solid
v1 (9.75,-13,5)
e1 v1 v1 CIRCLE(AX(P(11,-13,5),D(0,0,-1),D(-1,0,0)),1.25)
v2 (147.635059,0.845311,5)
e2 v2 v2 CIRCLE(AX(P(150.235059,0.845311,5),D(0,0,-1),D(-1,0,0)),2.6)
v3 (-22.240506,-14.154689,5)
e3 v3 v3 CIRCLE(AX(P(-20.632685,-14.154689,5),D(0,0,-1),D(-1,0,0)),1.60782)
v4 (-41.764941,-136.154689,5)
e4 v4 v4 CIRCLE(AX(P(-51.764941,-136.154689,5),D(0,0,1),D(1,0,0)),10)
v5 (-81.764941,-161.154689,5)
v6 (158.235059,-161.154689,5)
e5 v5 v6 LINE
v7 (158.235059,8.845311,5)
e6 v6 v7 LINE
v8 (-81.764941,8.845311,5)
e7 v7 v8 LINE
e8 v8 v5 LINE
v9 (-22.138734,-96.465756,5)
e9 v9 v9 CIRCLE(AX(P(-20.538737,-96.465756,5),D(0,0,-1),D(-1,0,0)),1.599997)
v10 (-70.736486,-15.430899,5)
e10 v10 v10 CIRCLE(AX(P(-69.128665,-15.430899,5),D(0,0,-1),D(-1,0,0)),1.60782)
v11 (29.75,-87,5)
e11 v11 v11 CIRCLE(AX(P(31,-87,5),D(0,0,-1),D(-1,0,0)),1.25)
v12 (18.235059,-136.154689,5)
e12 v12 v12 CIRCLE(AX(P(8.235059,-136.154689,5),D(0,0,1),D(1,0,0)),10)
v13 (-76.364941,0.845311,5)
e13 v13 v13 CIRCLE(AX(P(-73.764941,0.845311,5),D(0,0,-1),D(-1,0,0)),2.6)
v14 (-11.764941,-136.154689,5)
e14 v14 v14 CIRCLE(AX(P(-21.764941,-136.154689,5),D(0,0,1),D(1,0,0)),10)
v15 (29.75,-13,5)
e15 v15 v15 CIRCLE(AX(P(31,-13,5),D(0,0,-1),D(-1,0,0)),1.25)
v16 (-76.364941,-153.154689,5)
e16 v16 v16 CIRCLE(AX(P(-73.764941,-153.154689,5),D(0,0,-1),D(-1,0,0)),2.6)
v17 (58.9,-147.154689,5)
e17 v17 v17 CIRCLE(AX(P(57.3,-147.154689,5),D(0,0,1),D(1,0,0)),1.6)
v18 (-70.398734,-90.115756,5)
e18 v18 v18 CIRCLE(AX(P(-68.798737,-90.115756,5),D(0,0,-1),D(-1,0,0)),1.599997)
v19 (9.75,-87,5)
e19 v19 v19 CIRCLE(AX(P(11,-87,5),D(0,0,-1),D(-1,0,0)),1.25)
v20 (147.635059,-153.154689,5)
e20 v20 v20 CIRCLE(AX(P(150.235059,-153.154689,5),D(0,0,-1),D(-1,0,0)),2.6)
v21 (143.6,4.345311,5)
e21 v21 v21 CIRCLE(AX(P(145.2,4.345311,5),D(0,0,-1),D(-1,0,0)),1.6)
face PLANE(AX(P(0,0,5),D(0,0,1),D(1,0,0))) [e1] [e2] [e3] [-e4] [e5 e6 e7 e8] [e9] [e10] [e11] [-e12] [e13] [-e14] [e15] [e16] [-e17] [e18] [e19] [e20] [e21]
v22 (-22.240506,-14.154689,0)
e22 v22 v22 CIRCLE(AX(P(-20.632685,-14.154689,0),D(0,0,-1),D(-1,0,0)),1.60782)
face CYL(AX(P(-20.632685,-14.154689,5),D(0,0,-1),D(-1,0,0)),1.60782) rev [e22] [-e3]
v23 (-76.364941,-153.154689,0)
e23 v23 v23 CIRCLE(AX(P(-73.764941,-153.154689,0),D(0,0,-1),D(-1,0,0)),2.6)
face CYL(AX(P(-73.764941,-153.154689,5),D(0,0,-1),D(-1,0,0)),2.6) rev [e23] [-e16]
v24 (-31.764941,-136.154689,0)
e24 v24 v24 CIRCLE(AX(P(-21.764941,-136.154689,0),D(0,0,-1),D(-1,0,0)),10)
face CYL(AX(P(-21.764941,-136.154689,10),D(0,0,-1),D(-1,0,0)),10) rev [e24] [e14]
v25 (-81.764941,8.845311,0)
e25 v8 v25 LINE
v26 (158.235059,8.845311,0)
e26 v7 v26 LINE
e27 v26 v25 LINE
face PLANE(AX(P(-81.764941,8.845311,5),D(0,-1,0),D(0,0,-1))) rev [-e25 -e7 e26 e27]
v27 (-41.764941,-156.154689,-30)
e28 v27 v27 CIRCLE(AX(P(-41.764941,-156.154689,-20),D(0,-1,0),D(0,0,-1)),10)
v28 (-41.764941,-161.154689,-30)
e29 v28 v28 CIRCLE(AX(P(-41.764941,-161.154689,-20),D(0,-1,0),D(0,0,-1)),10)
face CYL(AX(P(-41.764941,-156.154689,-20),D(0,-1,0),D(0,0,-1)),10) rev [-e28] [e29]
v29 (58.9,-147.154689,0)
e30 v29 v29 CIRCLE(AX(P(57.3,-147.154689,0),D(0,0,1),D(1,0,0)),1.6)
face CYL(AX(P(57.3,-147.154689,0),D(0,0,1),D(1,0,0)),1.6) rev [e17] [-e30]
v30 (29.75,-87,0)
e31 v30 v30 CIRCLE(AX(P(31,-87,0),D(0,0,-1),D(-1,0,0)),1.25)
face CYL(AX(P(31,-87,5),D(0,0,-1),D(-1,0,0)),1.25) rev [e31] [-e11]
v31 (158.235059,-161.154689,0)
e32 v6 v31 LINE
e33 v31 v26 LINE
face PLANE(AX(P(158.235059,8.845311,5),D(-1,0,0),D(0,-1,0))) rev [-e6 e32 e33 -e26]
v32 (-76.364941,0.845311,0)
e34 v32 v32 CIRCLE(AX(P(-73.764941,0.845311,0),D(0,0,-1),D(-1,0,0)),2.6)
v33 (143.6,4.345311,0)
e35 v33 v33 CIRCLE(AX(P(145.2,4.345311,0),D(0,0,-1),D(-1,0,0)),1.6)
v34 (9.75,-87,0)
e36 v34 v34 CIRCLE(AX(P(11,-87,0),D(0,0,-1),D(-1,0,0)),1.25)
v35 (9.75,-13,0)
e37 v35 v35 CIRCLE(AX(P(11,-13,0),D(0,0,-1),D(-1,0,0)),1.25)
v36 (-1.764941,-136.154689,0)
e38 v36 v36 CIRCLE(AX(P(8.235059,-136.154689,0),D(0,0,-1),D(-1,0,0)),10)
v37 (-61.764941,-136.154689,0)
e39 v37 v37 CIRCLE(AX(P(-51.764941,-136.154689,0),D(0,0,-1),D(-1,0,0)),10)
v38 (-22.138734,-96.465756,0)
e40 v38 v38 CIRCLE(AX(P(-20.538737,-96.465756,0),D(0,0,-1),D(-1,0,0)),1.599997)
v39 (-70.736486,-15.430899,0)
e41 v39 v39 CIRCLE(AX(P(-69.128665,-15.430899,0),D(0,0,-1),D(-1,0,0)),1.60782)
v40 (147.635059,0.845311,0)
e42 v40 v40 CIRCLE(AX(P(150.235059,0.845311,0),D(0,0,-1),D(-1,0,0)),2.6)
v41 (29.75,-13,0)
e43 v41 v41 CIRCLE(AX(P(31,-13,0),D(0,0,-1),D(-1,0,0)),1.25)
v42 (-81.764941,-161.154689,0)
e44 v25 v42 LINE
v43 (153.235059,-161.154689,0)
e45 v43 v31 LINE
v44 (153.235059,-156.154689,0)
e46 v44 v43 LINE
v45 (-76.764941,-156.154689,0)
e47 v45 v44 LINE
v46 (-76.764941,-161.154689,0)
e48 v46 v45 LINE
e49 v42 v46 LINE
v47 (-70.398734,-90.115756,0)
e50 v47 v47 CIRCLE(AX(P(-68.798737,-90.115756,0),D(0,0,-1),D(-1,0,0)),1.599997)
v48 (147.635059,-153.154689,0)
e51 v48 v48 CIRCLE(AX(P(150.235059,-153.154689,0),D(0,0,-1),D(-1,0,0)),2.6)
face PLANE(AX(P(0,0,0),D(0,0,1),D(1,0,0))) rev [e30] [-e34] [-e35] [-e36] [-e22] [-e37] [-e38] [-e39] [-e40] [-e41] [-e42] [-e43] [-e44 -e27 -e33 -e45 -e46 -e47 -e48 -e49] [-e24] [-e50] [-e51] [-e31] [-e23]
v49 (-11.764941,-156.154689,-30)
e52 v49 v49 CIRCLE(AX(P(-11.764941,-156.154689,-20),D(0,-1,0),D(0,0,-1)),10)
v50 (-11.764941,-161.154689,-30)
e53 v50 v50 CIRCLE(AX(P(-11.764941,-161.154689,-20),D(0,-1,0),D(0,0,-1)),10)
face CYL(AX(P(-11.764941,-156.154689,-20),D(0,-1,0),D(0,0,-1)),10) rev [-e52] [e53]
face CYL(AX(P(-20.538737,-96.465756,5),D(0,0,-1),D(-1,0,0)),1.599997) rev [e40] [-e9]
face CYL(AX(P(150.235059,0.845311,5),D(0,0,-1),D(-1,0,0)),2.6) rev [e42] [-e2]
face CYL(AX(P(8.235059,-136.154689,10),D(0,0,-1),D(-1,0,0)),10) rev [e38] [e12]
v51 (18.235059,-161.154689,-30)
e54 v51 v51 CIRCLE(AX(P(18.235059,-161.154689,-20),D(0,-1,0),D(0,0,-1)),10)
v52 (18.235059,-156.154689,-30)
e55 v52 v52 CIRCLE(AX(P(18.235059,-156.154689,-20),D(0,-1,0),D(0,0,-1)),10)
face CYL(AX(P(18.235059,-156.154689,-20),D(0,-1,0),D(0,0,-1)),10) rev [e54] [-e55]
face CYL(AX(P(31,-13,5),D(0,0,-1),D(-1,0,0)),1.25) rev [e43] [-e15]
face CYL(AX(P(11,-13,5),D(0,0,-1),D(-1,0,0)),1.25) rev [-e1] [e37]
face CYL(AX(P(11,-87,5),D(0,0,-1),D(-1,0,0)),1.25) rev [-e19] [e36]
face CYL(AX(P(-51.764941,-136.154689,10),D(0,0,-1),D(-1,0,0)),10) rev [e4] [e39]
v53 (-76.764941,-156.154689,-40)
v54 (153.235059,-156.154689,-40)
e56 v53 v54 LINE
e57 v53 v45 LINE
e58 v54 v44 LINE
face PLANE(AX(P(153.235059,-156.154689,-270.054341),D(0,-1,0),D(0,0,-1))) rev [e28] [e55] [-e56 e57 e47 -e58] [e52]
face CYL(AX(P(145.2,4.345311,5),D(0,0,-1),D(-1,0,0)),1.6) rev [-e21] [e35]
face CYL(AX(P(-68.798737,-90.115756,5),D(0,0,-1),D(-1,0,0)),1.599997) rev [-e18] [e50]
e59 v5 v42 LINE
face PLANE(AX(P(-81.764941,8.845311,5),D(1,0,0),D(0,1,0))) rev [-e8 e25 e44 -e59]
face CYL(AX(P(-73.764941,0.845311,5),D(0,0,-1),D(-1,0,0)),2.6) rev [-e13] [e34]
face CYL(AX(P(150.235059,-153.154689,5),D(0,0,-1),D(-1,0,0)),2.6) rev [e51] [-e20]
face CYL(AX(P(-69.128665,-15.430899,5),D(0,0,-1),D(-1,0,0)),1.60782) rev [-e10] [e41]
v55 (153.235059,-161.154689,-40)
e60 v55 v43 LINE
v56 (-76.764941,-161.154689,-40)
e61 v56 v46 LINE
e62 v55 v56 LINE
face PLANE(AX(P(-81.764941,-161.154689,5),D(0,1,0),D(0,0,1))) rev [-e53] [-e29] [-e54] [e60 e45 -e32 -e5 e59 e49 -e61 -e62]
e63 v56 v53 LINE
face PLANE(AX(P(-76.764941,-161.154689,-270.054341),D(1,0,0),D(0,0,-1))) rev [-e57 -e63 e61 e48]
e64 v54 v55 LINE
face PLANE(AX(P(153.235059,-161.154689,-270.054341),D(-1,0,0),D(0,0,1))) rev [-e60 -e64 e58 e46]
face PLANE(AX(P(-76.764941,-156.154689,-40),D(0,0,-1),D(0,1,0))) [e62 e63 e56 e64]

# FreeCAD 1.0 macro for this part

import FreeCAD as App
import Part
import Sketcher

V = App.Vector
Q = App.Units.Quantity

doc = App.newDocument("Part")
params = doc.addObject("Spreadsheet::Sheet", "Params")
for row, (alias, value) in enumerate([
    ("sketch1_width", "240 mm"),
    ("sketch1_height", "170 mm"),
    ("pad1_length", "5 mm"),
    ("sketch2_diameter", "3.2 mm"),
    ("sketch2_diameter2", "2.5 mm"),
    ("pocket1_length", "5 mm"),
    ("sketch3_diameter", "3.2 mm"),
    ("pocket2_length", "5 mm"),
    ("sketch4_diameter", "5.2 mm"),
    ("pocket3_length", "5 mm"),
    ("sketch5_width", "230 mm"),
    ("sketch5_height", "5 mm"),
    ("pad2_length", "40 mm"),
    ("sketch6_diameter", "20 mm"),
    ("pocket4_length", "5 mm"),
    ("sketch7_diameter", "20 mm"),
    ("pocket5_length", "10 mm"),
], start=1):
    params.set(f"A{row}", alias)
    params.set(f"B{row}", "=" + value)
    params.setAlias(f"B{row}", alias)

body = doc.addObject("PartDesign::Body", "Body")

sketch1 = body.newObject("Sketcher::SketchObject", "Sketch")
sketch1.AttachmentSupport = (doc.getObject("XY_Plane"), [""])
sketch1.MapMode = "FlatFace"
sketch1.addGeometry(Part.LineSegment(V(-82, 9, 0), V(-82, -161, 0)), False)
sketch1.addGeometry(Part.LineSegment(V(-82, -161, 0), V(158, -161, 0)), False)
sketch1.addGeometry(Part.LineSegment(V(158, -161, 0), V(158, 9, 0)), False)
sketch1.addGeometry(Part.LineSegment(V(158, 9, 0), V(-82, 9, 0)), False)
sketch1.addConstraint(Sketcher.Constraint("Coincident", 0, 2, 1, 1))
sketch1.addConstraint(Sketcher.Constraint("Coincident", 1, 2, 2, 1))
sketch1.addConstraint(Sketcher.Constraint("Coincident", 2, 2, 3, 1))
sketch1.addConstraint(Sketcher.Constraint("Coincident", 3, 2, 0, 1))
sketch1.addConstraint(Sketcher.Constraint("Vertical", 0))
sketch1.addConstraint(Sketcher.Constraint("Horizontal", 1))
sketch1.addConstraint(Sketcher.Constraint("Vertical", 2))
sketch1.addConstraint(Sketcher.Constraint("Horizontal", 3))
sketch1.addConstraint(Sketcher.Constraint("DistanceX", 1, 1, 1, 2, Q("240 mm")))
sketch1.addConstraint(Sketcher.Constraint("DistanceY", 0, 2, 0, 1, Q("170 mm")))
sketch1.addConstraint(Sketcher.Constraint("DistanceX", 0, 2, -1, 1, Q("81.764941 mm")))
sketch1.addConstraint(Sketcher.Constraint("DistanceY", 0, 2, -1, 1, Q("161.154689 mm")))
sketch1.setExpression("Constraints[8]", "Params.sketch1_width")
sketch1.setExpression("Constraints[9]", "Params.sketch1_height")
pad1 = body.newObject("PartDesign::Pad", "Pad")
pad1.Profile = sketch1
pad1.setExpression("Length", "Params.pad1_length")

sketch2 = body.newObject("Sketcher::SketchObject", "Sketch001")
sketch2.AttachmentSupport = (doc.getObject("XY_Plane"), [""])
sketch2.MapMode = "FlatFace"
sketch2.addGeometry(Part.Circle(V(145.2, 4.3, 0), V(0, 0, 1), 1.6), False)
sketch2.addGeometry(Part.Circle(V(-20.5, -96.5, 0), V(0, 0, 1), 1.6), False)
sketch2.addGeometry(Part.Circle(V(-68.8, -90.1, 0), V(0, 0, 1), 1.6), False)
sketch2.addGeometry(Part.Circle(V(-69.1, -15.4, 0), V(0, 0, 1), 1.6), False)
sketch2.addGeometry(Part.Circle(V(-20.6, -14.2, 0), V(0, 0, 1), 1.6), False)
sketch2.addGeometry(Part.Circle(V(31, -87, 0), V(0, 0, 1), 1.2), False)
sketch2.addGeometry(Part.Circle(V(11, -87, 0), V(0, 0, 1), 1.2), False)
sketch2.addGeometry(Part.Circle(V(31, -13, 0), V(0, 0, 1), 1.2), False)
sketch2.addGeometry(Part.Circle(V(11, -13, 0), V(0, 0, 1), 1.2), False)
sketch2.addConstraint(Sketcher.Constraint("Equal", 1, 2))
sketch2.addConstraint(Sketcher.Constraint("Equal", 3, 4))
sketch2.addConstraint(Sketcher.Constraint("Equal", 5, 6))
sketch2.addConstraint(Sketcher.Constraint("Equal", 6, 7))
sketch2.addConstraint(Sketcher.Constraint("Equal", 7, 8))
sketch2.addConstraint(Sketcher.Constraint("Horizontal", 5, 3, 6, 3))
sketch2.addConstraint(Sketcher.Constraint("Horizontal", 7, 3, 8, 3))
sketch2.addConstraint(Sketcher.Constraint("Vertical", 5, 3, 7, 3))
sketch2.addConstraint(Sketcher.Constraint("Vertical", 6, 3, 8, 3))
sketch2.addConstraint(Sketcher.Constraint("Diameter", 0, Q("3.2 mm")))
sketch2.addConstraint(Sketcher.Constraint("Diameter", 5, Q("2.5 mm")))
sketch2.addConstraint(Sketcher.Constraint("DistanceX", -1, 1, 5, 3, Q("31 mm")))
sketch2.addConstraint(Sketcher.Constraint("DistanceY", 5, 3, -1, 1, Q("87 mm")))
sketch2.addConstraint(Sketcher.Constraint("DistanceX", -1, 1, 6, 3, Q("11 mm")))
sketch2.addConstraint(Sketcher.Constraint("DistanceY", 7, 3, -1, 1, Q("13 mm")))
sketch2.addConstraint(Sketcher.Constraint("DistanceX", -1, 1, 0, 3, Q("145.2 mm")))
sketch2.addConstraint(Sketcher.Constraint("DistanceY", 4, 3, 0, 3, Q("18.5 mm")))
sketch2.addConstraint(Sketcher.Constraint("Diameter", 3, Q("3.215641 mm")))
sketch2.addConstraint(Sketcher.Constraint("DistanceX", 2, 3, 1, 3, Q("48.26 mm")))
sketch2.addConstraint(Sketcher.Constraint("DistanceY", 1, 3, 2, 3, Q("6.35 mm")))
sketch2.addConstraint(Sketcher.Constraint("Diameter", 1, Q("3.199994 mm")))
sketch2.addConstraint(Sketcher.Constraint("DistanceY", 3, 3, -1, 1, Q("15.430899 mm")))
sketch2.addConstraint(Sketcher.Constraint("DistanceY", -1, 1, 0, 3, Q("4.345311 mm")))
sketch2.addConstraint(Sketcher.Constraint("DistanceX", 3, 3, 2, 3, Q("0.329929 mm")))
sketch2.addConstraint(Sketcher.Constraint("DistanceX", 3, 3, 4, 3, Q("48.49598 mm")))
sketch2.addConstraint(Sketcher.Constraint("DistanceX", 1, 3, -1, 1, Q("20.538737 mm")))
sketch2.addConstraint(Sketcher.Constraint("DistanceY", 1, 3, -1, 1, Q("96.465756 mm")))
sketch2.setExpression("Constraints[9]", "Params.sketch2_diameter")
sketch2.setExpression("Constraints[10]", "Params.sketch2_diameter2")
pocket1 = body.newObject("PartDesign::Pocket", "Pocket")
pocket1.Profile = sketch2
pocket1.setExpression("Length", "Params.pocket1_length")
pocket1.Reversed = True

sketch3 = body.newObject("Sketcher::SketchObject", "Sketch002")
sketch3.AttachmentSupport = (doc.getObject("XY_Plane"), [""])
sketch3.MapMode = "FlatFace"
sketch3.AttachmentOffset = App.Placement(V(0, 0, 5), App.Rotation())
sketch3.addGeometry(Part.Circle(V(57.3, -147.2, 0), V(0, 0, 1), 1.6), False)
sketch3.addConstraint(Sketcher.Constraint("Diameter", 0, Q("3.2 mm")))
sketch3.addConstraint(Sketcher.Constraint("DistanceX", -1, 1, 0, 3, Q("57.3 mm")))
sketch3.addConstraint(Sketcher.Constraint("DistanceY", 0, 3, -1, 1, Q("147.154689 mm")))
sketch3.setExpression("Constraints[0]", "Params.sketch3_diameter")
pocket2 = body.newObject("PartDesign::Pocket", "Pocket001")
pocket2.Profile = sketch3
pocket2.setExpression("Length", "Params.pocket2_length")

sketch4 = body.newObject("Sketcher::SketchObject", "Sketch003")
sketch4.AttachmentSupport = (doc.getObject("XY_Plane"), [""])
sketch4.MapMode = "FlatFace"
sketch4.addGeometry(Part.Circle(V(-73.8, -153.2, 0), V(0, 0, 1), 2.6), False)
sketch4.addGeometry(Part.Circle(V(150.2, -153.2, 0), V(0, 0, 1), 2.6), False)
sketch4.addGeometry(Part.Circle(V(150.2, 0.8, 0), V(0, 0, 1), 2.6), False)
sketch4.addGeometry(Part.Circle(V(-73.8, 0.8, 0), V(0, 0, 1), 2.6), False)
sketch4.addConstraint(Sketcher.Constraint("Equal", 0, 1))
sketch4.addConstraint(Sketcher.Constraint("Equal", 1, 2))
sketch4.addConstraint(Sketcher.Constraint("Equal", 2, 3))
sketch4.addConstraint(Sketcher.Constraint("Horizontal", 0, 3, 1, 3))
sketch4.addConstraint(Sketcher.Constraint("Horizontal", 2, 3, 3, 3))
sketch4.addConstraint(Sketcher.Constraint("Vertical", 1, 3, 2, 3))
sketch4.addConstraint(Sketcher.Constraint("Vertical", 0, 3, 3, 3))
sketch4.addConstraint(Sketcher.Constraint("Diameter", 0, Q("5.2 mm")))
sketch4.addConstraint(Sketcher.Constraint("DistanceX", 0, 3, 1, 3, Q("224 mm")))
sketch4.addConstraint(Sketcher.Constraint("DistanceY", 1, 3, 2, 3, Q("154 mm")))
sketch4.addConstraint(Sketcher.Constraint("DistanceX", 0, 3, -1, 1, Q("73.764941 mm")))
sketch4.addConstraint(Sketcher.Constraint("DistanceY", 0, 3, -1, 1, Q("153.154689 mm")))
sketch4.setExpression("Constraints[7]", "Params.sketch4_diameter")
pocket3 = body.newObject("PartDesign::Pocket", "Pocket002")
pocket3.Profile = sketch4
pocket3.setExpression("Length", "Params.pocket3_length")
pocket3.Reversed = True

sketch5 = body.newObject("Sketcher::SketchObject", "Sketch004")
sketch5.AttachmentSupport = (doc.getObject("XY_Plane"), [""])
sketch5.MapMode = "FlatFace"
sketch5.addGeometry(Part.LineSegment(V(153, -156, 0), V(153, -161, 0)), False)
sketch5.addGeometry(Part.LineSegment(V(153, -161, 0), V(-77, -161, 0)), False)
sketch5.addGeometry(Part.LineSegment(V(-77, -161, 0), V(-77, -156, 0)), False)
sketch5.addGeometry(Part.LineSegment(V(-77, -156, 0), V(153, -156, 0)), False)
sketch5.addConstraint(Sketcher.Constraint("Coincident", 0, 2, 1, 1))
sketch5.addConstraint(Sketcher.Constraint("Coincident", 1, 2, 2, 1))
sketch5.addConstraint(Sketcher.Constraint("Coincident", 2, 2, 3, 1))
sketch5.addConstraint(Sketcher.Constraint("Coincident", 3, 2, 0, 1))
sketch5.addConstraint(Sketcher.Constraint("Vertical", 0))
sketch5.addConstraint(Sketcher.Constraint("Horizontal", 1))
sketch5.addConstraint(Sketcher.Constraint("Vertical", 2))
sketch5.addConstraint(Sketcher.Constraint("Horizontal", 3))
sketch5.addConstraint(Sketcher.Constraint("DistanceX", 1, 2, 1, 1, Q("230 mm")))
sketch5.addConstraint(Sketcher.Constraint("DistanceY", 0, 2, 0, 1, Q("5 mm")))
sketch5.addConstraint(Sketcher.Constraint("DistanceX", -1, 1, 0, 2, Q("153.235059 mm")))
sketch5.addConstraint(Sketcher.Constraint("DistanceY", 0, 2, -1, 1, Q("161.154689 mm")))
sketch5.setExpression("Constraints[8]", "Params.sketch5_width")
sketch5.setExpression("Constraints[9]", "Params.sketch5_height")
pad2 = body.newObject("PartDesign::Pad", "Pad001")
pad2.Profile = sketch5
pad2.setExpression("Length", "Params.pad2_length")
pad2.Reversed = True

sketch6 = body.newObject("Sketcher::SketchObject", "Sketch005")
sketch6.AttachmentSupport = (doc.getObject("XZ_Plane"), [""])
sketch6.MapMode = "FlatFace"
sketch6.AttachmentOffset = App.Placement(V(0, 0, 161.154689), App.Rotation())
sketch6.addGeometry(Part.Circle(V(-42, -20, 0), V(0, 0, 1), 10), False)
sketch6.addGeometry(Part.Circle(V(-12, -20, 0), V(0, 0, 1), 10), False)
sketch6.addGeometry(Part.Circle(V(18, -20, 0), V(0, 0, 1), 10), False)
sketch6.addConstraint(Sketcher.Constraint("Equal", 0, 1))
sketch6.addConstraint(Sketcher.Constraint("Equal", 1, 2))
sketch6.addConstraint(Sketcher.Constraint("Horizontal", 0, 3, 1, 3))
sketch6.addConstraint(Sketcher.Constraint("Horizontal", 1, 3, 2, 3))
sketch6.addConstraint(Sketcher.Constraint("Diameter", 0, Q("20 mm")))
sketch6.addConstraint(Sketcher.Constraint("DistanceY", 0, 3, -1, 1, Q("20 mm")))
sketch6.addConstraint(Sketcher.Constraint("DistanceX", 0, 3, 1, 3, Q("30 mm")))
sketch6.addConstraint(Sketcher.Constraint("DistanceX", 1, 3, 2, 3, Q("30 mm")))
sketch6.addConstraint(Sketcher.Constraint("DistanceX", 0, 3, -1, 1, Q("41.764941 mm")))
sketch6.setExpression("Constraints[4]", "Params.sketch6_diameter")
pocket4 = body.newObject("PartDesign::Pocket", "Pocket003")
pocket4.Profile = sketch6
pocket4.setExpression("Length", "Params.pocket4_length")

sketch7 = body.newObject("Sketcher::SketchObject", "Sketch006")
sketch7.AttachmentSupport = (doc.getObject("XY_Plane"), [""])
sketch7.MapMode = "FlatFace"
sketch7.addGeometry(Part.Circle(V(-52, -136, 0), V(0, 0, 1), 10), False)
sketch7.addGeometry(Part.Circle(V(-22, -136, 0), V(0, 0, 1), 10), False)
sketch7.addGeometry(Part.Circle(V(8, -136, 0), V(0, 0, 1), 10), False)
sketch7.addConstraint(Sketcher.Constraint("Equal", 0, 1))
sketch7.addConstraint(Sketcher.Constraint("Equal", 1, 2))
sketch7.addConstraint(Sketcher.Constraint("Horizontal", 0, 3, 1, 3))
sketch7.addConstraint(Sketcher.Constraint("Horizontal", 1, 3, 2, 3))
sketch7.addConstraint(Sketcher.Constraint("Diameter", 0, Q("20 mm")))
sketch7.addConstraint(Sketcher.Constraint("DistanceX", 0, 3, 1, 3, Q("30 mm")))
sketch7.addConstraint(Sketcher.Constraint("DistanceX", 1, 3, 2, 3, Q("30 mm")))
sketch7.addConstraint(Sketcher.Constraint("DistanceX", 0, 3, -1, 1, Q("51.764941 mm")))
sketch7.addConstraint(Sketcher.Constraint("DistanceY", 0, 3, -1, 1, Q("136.154689 mm")))
sketch7.setExpression("Constraints[4]", "Params.sketch7_diameter")
pocket5 = body.newObject("PartDesign::Pocket", "Pocket004")
pocket5.Profile = sketch7
pocket5.setExpression("Length", "Params.pocket5_length")
pocket5.Reversed = True

doc.recompute()
